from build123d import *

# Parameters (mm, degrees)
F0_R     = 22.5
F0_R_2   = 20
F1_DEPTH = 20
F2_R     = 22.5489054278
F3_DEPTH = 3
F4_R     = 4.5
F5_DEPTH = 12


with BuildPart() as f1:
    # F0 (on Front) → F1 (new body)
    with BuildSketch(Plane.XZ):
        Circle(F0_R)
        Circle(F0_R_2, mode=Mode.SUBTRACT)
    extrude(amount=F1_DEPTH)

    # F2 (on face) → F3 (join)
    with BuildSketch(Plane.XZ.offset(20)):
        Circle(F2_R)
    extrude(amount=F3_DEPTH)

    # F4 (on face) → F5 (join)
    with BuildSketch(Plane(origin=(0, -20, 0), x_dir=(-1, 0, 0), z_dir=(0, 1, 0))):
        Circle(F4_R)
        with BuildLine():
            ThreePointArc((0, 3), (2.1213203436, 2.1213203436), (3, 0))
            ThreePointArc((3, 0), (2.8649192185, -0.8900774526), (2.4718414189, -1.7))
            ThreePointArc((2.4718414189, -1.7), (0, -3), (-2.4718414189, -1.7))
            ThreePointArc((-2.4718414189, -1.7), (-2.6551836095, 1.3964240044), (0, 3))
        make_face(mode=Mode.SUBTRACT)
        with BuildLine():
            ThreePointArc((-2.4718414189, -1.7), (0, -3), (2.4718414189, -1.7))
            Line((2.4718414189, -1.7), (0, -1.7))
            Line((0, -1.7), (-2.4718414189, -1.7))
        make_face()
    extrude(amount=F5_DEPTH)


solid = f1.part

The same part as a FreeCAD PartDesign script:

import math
import FreeCAD as App
import Part
import Sketcher

V = App.Vector
Q = App.Units.Quantity

doc = App.newDocument("Part")
body = doc.addObject("PartDesign::Body", "Body")

sketch1 = doc.addObject("Sketcher::SketchObject", "Sketch")
body.addObject(sketch1)
sketch1.AttachmentSupport = (doc.XZ_Plane, [""])
sketch1.MapMode = "FlatFace"
sketch1.addGeometry([
    Part.Circle(V(0, 0, 0), V(0, 0, 1), 22),
    Part.Circle(V(0, 0, 0), V(0, 0, 1), 20),
], False)
sketch1.addConstraint([
    Sketcher.Constraint("Coincident", 0, 3, -1, 1),
    Sketcher.Constraint("Coincident", 1, 3, -1, 1),
    Sketcher.Constraint("Diameter", 0, Q("45 mm")),
    Sketcher.Constraint("Diameter", 1, Q("40 mm")),
])
pad1 = doc.addObject("PartDesign::Pad", "Pad")
body.addObject(pad1)
pad1.Profile = sketch1
pad1.Length = 20

sketch2 = doc.addObject("Sketcher::SketchObject", "Sketch001")
body.addObject(sketch2)
sketch2.AttachmentSupport = (doc.XZ_Plane, [""])
sketch2.MapMode = "FlatFace"
sketch2.AttachmentOffset = App.Placement(V(0, 0, 20), App.Rotation())
sketch2.addGeometry(Part.Circle(V(0, 0, 0), V(0, 0, 1), 23), False)
sketch2.addConstraint([
    Sketcher.Constraint("Coincident", 0, 3, -1, 1),
    Sketcher.Constraint("Diameter", 0, Q("45.097811 mm")),
])
pad2 = doc.addObject("PartDesign::Pad", "Pad001")
body.addObject(pad2)
pad2.Profile = sketch2
pad2.Length = 3

sketch3 = doc.addObject("Sketcher::SketchObject", "Sketch002")
body.addObject(sketch3)
sketch3.AttachmentSupport = (doc.XZ_Plane, [""])
sketch3.MapMode = "FlatFace"
sketch3.AttachmentOffset = App.Placement(V(0, 0, 20), App.Rotation())
sketch3.addGeometry([
    Part.Circle(V(0, 0, 0), V(0, 0, 1), 4.5),
    Part.ArcOfCircle(Part.Circle(V(0, 0, 0), V(0, 0, 1), 3), math.radians(-35), math.radians(90)),
    Part.ArcOfCircle(Part.Circle(V(0, 0, 0), V(0, 0, 1), 3), math.radians(90), math.radians(180)),
    Part.ArcOfCircle(Part.Circle(V(0, 0, 0), V(0, 0, 1), 3), math.radians(180), math.radians(215)),
    Part.LineSegment(V(-2.5, -1.7, 0), V(2.5, -1.7, 0)),
], False)
sketch3.addConstraint([
    Sketcher.Constraint("Tangent", 1, 2, 2, 1),
    Sketcher.Constraint("Tangent", 2, 2, 3, 1),
    Sketcher.Constraint("Coincident", 3, 2, 4, 1),
    Sketcher.Constraint("Coincident", 4, 2, 1, 1),
    Sketcher.Constraint("Horizontal", 4),
    Sketcher.Constraint("Coincident", 0, 3, -1, 1),
    Sketcher.Constraint("Coincident", 1, 3, -1, 1),
    Sketcher.Constraint("Coincident", 3, 3, -1, 1),
    Sketcher.Constraint("PointOnObject", 1, 2, -2),
    Sketcher.Constraint("PointOnObject", 2, 2, -1),
    Sketcher.Constraint("Diameter", 0, Q("9 mm")),
    Sketcher.Constraint("Radius", 1, Q("3 mm")),
    Sketcher.Constraint("DistanceY", 3, 2, -1, 1, Q("1.7 mm")),
])
pad3 = doc.addObject("PartDesign::Pad", "Pad002")
body.addObject(pad3)
pad3.Profile = sketch3
pad3.Length = 12
pad3.Reversed = True

doc.recompute()
